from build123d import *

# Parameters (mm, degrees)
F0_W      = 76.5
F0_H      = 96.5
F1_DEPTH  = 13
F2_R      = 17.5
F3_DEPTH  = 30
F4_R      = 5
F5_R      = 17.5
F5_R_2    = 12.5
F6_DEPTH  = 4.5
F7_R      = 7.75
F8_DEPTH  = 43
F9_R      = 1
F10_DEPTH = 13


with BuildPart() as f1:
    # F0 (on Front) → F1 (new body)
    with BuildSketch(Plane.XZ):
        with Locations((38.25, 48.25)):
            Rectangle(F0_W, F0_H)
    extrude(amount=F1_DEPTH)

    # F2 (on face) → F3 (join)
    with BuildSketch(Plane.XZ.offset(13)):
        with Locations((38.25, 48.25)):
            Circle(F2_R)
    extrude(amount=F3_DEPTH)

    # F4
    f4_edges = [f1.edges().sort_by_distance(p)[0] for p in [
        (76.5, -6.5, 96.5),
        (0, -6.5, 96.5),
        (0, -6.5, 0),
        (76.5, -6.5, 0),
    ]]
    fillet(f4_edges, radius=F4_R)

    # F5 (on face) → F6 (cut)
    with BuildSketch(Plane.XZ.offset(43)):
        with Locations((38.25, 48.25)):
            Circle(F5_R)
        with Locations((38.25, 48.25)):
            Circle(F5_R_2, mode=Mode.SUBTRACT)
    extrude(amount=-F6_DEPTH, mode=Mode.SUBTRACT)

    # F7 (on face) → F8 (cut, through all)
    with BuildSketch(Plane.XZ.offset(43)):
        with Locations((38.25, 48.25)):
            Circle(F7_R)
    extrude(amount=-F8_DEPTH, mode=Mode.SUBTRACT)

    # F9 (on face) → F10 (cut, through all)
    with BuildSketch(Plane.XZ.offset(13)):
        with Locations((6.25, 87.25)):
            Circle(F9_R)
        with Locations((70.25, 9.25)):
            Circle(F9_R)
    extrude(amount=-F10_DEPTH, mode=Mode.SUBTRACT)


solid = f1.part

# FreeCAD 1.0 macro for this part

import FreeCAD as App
import Part
import Sketcher

V = App.Vector
Q = App.Units.Quantity


def edges_at(feature, points):
    """Names of the edges that pass closest to the given points."""
    edges = feature.Shape.Edges
    near = lambda p: min(range(len(edges)), key=lambda i: edges[i].distToShape(Part.Vertex(*p))[0])
    return sorted({f"Edge{near(p) + 1}" for p in points})

doc = App.newDocument("Part")
params = doc.addObject("Spreadsheet::Sheet", "Params")
for row, (alias, value) in enumerate([
    ("sketch1_width", "76.5 mm"),
    ("sketch1_height", "96.5 mm"),
    ("pad1_length", "13 mm"),
    ("sketch2_diameter", "35 mm"),
    ("pad2_length", "30 mm"),
    ("fillet_radius", "5 mm"),
    ("sketch3_diameter", "35 mm"),
    ("sketch3_diameter2", "25 mm"),
    ("pocket1_length", "4.5 mm"),
    ("sketch4_diameter", "15.5 mm"),
    ("sketch5_diameter", "2 mm"),
], start=1):
    params.set(f"A{row}", alias)
    params.set(f"B{row}", "=" + value)
    params.setAlias(f"B{row}", alias)

body = doc.addObject("PartDesign::Body", "Body")

sketch1 = body.newObject("Sketcher::SketchObject", "Sketch")
sketch1.AttachmentSupport = (doc.getObject("XZ_Plane"), [""])
sketch1.MapMode = "FlatFace"
sketch1.addGeometry([
    Part.LineSegment(V(0, 96, 0), V(0, 0, 0)),
    Part.LineSegment(V(0, 0, 0), V(76, 0, 0)),
    Part.LineSegment(V(76, 0, 0), V(76, 96, 0)),
    Part.LineSegment(V(76, 96, 0), V(0, 96, 0)),
], False)
sketch1.addConstraint([
    Sketcher.Constraint("Coincident", 0, 2, 1, 1),
    Sketcher.Constraint("Coincident", 1, 2, 2, 1),
    Sketcher.Constraint("Coincident", 2, 2, 3, 1),
    Sketcher.Constraint("Coincident", 3, 2, 0, 1),
    Sketcher.Constraint("Vertical", 0),
    Sketcher.Constraint("Horizontal", 1),
    Sketcher.Constraint("Vertical", 2),
    Sketcher.Constraint("Horizontal", 3),
    Sketcher.Constraint("Coincident", 0, 2, -1, 1),
    Sketcher.Constraint("DistanceX", 1, 1, 1, 2, Q("76.5 mm")),
    Sketcher.Constraint("DistanceY", 0, 2, 0, 1, Q("96.5 mm")),
])
sketch1.setExpression("Constraints[9]", "Params.sketch1_width")
sketch1.setExpression("Constraints[10]", "Params.sketch1_height")
pad1 = body.newObject("PartDesign::Pad", "Pad")
pad1.Profile = sketch1
pad1.setExpression("Length", "Params.pad1_length")

sketch2 = body.newObject("Sketcher::SketchObject", "Sketch001")
sketch2.AttachmentSupport = (doc.getObject("XZ_Plane"), [""])
sketch2.MapMode = "FlatFace"
sketch2.AttachmentOffset = App.Placement(V(0, 0, 13), App.Rotation())
sketch2.addGeometry(Part.Circle(V(38, 48, 0), V(0, 0, 1), 18), False)
sketch2.addConstraint([
    Sketcher.Constraint("Diameter", 0, Q("35 mm")),
    Sketcher.Constraint("DistanceX", -1, 1, 0, 3, Q("38.25 mm")),
    Sketcher.Constraint("DistanceY", -1, 1, 0, 3, Q("48.25 mm")),
])
sketch2.setExpression("Constraints[0]", "Params.sketch2_diameter")
pad2 = body.newObject("PartDesign::Pad", "Pad001")
pad2.Profile = sketch2
pad2.setExpression("Length", "Params.pad2_length")
doc.recompute()

fillet = body.newObject("PartDesign::Fillet", "Fillet")
fillet.Base = (pad2, edges_at(pad2, [
    (76.5, -6.5, 96.5),
    (0, -6.5, 96.5),
    (0, -6.5, 0),
    (76.5, -6.5, 0),
]))
fillet.setExpression("Radius", "Params.fillet_radius")

sketch3 = body.newObject("Sketcher::SketchObject", "Sketch002")
sketch3.AttachmentSupport = (doc.getObject("XZ_Plane"), [""])
sketch3.MapMode = "FlatFace"
sketch3.AttachmentOffset = App.Placement(V(0, 0, 43), App.Rotation())
sketch3.addGeometry([
    Part.Circle(V(38, 48, 0), V(0, 0, 1), 18),
    Part.Circle(V(38, 48, 0), V(0, 0, 1), 12),
], False)
sketch3.addConstraint([
    Sketcher.Constraint("Coincident", 1, 3, 0, 3),
    Sketcher.Constraint("Diameter", 0, Q("35 mm")),
    Sketcher.Constraint("Diameter", 1, Q("25 mm")),
    Sketcher.Constraint("DistanceX", -1, 1, 0, 3, Q("38.25 mm")),
    Sketcher.Constraint("DistanceY", -1, 1, 0, 3, Q("48.25 mm")),
])
sketch3.setExpression("Constraints[1]", "Params.sketch3_diameter")
sketch3.setExpression("Constraints[2]", "Params.sketch3_diameter2")
pocket1 = body.newObject("PartDesign::Pocket", "Pocket")
pocket1.Profile = sketch3
pocket1.setExpression("Length", "Params.pocket1_length")

sketch4 = body.newObject("Sketcher::SketchObject", "Sketch003")
sketch4.AttachmentSupport = (doc.getObject("XZ_Plane"), [""])
sketch4.MapMode = "FlatFace"
sketch4.AttachmentOffset = App.Placement(V(0, 0, 43), App.Rotation())
sketch4.addGeometry(Part.Circle(V(38, 48, 0), V(0, 0, 1), 8), False)
sketch4.addConstraint([
    Sketcher.Constraint("Diameter", 0, Q("15.5 mm")),
    Sketcher.Constraint("DistanceX", -1, 1, 0, 3, Q("38.25 mm")),
    Sketcher.Constraint("DistanceY", -1, 1, 0, 3, Q("48.25 mm")),
])
sketch4.setExpression("Constraints[0]", "Params.sketch4_diameter")
pocket2 = body.newObject("PartDesign::Pocket", "Pocket001")
pocket2.Profile = sketch4
pocket2.Type = "ThroughAll"

sketch5 = body.newObject("Sketcher::SketchObject", "Sketch004")
sketch5.AttachmentSupport = (doc.getObject("XZ_Plane"), [""])
sketch5.MapMode = "FlatFace"
sketch5.AttachmentOffset = App.Placement(V(0, 0, 13), App.Rotation())
sketch5.addGeometry([
    Part.Circle(V(6.2, 87.2, 0), V(0, 0, 1), 1),
    Part.Circle(V(70.2, 9.2, 0), V(0, 0, 1), 1),
], False)
sketch5.addConstraint([
    Sketcher.Constraint("Equal", 0, 1),
    Sketcher.Constraint("Diameter", 0, Q("2 mm")),
    Sketcher.Constraint("DistanceX", 0, 3, 1, 3, Q("64 mm")),
    Sketcher.Constraint("DistanceY", 1, 3, 0, 3, Q("78 mm")),
    Sketcher.Constraint("DistanceX", -1, 1, 0, 3, Q("6.25 mm")),
    Sketcher.Constraint("DistanceY", -1, 1, 0, 3, Q("87.25 mm")),
])
sketch5.setExpression("Constraints[1]", "Params.sketch5_diameter")
pocket3 = body.newObject("PartDesign::Pocket", "Pocket002")
pocket3.Profile = sketch5
pocket3.Type = "ThroughAll"

doc.recompute()
